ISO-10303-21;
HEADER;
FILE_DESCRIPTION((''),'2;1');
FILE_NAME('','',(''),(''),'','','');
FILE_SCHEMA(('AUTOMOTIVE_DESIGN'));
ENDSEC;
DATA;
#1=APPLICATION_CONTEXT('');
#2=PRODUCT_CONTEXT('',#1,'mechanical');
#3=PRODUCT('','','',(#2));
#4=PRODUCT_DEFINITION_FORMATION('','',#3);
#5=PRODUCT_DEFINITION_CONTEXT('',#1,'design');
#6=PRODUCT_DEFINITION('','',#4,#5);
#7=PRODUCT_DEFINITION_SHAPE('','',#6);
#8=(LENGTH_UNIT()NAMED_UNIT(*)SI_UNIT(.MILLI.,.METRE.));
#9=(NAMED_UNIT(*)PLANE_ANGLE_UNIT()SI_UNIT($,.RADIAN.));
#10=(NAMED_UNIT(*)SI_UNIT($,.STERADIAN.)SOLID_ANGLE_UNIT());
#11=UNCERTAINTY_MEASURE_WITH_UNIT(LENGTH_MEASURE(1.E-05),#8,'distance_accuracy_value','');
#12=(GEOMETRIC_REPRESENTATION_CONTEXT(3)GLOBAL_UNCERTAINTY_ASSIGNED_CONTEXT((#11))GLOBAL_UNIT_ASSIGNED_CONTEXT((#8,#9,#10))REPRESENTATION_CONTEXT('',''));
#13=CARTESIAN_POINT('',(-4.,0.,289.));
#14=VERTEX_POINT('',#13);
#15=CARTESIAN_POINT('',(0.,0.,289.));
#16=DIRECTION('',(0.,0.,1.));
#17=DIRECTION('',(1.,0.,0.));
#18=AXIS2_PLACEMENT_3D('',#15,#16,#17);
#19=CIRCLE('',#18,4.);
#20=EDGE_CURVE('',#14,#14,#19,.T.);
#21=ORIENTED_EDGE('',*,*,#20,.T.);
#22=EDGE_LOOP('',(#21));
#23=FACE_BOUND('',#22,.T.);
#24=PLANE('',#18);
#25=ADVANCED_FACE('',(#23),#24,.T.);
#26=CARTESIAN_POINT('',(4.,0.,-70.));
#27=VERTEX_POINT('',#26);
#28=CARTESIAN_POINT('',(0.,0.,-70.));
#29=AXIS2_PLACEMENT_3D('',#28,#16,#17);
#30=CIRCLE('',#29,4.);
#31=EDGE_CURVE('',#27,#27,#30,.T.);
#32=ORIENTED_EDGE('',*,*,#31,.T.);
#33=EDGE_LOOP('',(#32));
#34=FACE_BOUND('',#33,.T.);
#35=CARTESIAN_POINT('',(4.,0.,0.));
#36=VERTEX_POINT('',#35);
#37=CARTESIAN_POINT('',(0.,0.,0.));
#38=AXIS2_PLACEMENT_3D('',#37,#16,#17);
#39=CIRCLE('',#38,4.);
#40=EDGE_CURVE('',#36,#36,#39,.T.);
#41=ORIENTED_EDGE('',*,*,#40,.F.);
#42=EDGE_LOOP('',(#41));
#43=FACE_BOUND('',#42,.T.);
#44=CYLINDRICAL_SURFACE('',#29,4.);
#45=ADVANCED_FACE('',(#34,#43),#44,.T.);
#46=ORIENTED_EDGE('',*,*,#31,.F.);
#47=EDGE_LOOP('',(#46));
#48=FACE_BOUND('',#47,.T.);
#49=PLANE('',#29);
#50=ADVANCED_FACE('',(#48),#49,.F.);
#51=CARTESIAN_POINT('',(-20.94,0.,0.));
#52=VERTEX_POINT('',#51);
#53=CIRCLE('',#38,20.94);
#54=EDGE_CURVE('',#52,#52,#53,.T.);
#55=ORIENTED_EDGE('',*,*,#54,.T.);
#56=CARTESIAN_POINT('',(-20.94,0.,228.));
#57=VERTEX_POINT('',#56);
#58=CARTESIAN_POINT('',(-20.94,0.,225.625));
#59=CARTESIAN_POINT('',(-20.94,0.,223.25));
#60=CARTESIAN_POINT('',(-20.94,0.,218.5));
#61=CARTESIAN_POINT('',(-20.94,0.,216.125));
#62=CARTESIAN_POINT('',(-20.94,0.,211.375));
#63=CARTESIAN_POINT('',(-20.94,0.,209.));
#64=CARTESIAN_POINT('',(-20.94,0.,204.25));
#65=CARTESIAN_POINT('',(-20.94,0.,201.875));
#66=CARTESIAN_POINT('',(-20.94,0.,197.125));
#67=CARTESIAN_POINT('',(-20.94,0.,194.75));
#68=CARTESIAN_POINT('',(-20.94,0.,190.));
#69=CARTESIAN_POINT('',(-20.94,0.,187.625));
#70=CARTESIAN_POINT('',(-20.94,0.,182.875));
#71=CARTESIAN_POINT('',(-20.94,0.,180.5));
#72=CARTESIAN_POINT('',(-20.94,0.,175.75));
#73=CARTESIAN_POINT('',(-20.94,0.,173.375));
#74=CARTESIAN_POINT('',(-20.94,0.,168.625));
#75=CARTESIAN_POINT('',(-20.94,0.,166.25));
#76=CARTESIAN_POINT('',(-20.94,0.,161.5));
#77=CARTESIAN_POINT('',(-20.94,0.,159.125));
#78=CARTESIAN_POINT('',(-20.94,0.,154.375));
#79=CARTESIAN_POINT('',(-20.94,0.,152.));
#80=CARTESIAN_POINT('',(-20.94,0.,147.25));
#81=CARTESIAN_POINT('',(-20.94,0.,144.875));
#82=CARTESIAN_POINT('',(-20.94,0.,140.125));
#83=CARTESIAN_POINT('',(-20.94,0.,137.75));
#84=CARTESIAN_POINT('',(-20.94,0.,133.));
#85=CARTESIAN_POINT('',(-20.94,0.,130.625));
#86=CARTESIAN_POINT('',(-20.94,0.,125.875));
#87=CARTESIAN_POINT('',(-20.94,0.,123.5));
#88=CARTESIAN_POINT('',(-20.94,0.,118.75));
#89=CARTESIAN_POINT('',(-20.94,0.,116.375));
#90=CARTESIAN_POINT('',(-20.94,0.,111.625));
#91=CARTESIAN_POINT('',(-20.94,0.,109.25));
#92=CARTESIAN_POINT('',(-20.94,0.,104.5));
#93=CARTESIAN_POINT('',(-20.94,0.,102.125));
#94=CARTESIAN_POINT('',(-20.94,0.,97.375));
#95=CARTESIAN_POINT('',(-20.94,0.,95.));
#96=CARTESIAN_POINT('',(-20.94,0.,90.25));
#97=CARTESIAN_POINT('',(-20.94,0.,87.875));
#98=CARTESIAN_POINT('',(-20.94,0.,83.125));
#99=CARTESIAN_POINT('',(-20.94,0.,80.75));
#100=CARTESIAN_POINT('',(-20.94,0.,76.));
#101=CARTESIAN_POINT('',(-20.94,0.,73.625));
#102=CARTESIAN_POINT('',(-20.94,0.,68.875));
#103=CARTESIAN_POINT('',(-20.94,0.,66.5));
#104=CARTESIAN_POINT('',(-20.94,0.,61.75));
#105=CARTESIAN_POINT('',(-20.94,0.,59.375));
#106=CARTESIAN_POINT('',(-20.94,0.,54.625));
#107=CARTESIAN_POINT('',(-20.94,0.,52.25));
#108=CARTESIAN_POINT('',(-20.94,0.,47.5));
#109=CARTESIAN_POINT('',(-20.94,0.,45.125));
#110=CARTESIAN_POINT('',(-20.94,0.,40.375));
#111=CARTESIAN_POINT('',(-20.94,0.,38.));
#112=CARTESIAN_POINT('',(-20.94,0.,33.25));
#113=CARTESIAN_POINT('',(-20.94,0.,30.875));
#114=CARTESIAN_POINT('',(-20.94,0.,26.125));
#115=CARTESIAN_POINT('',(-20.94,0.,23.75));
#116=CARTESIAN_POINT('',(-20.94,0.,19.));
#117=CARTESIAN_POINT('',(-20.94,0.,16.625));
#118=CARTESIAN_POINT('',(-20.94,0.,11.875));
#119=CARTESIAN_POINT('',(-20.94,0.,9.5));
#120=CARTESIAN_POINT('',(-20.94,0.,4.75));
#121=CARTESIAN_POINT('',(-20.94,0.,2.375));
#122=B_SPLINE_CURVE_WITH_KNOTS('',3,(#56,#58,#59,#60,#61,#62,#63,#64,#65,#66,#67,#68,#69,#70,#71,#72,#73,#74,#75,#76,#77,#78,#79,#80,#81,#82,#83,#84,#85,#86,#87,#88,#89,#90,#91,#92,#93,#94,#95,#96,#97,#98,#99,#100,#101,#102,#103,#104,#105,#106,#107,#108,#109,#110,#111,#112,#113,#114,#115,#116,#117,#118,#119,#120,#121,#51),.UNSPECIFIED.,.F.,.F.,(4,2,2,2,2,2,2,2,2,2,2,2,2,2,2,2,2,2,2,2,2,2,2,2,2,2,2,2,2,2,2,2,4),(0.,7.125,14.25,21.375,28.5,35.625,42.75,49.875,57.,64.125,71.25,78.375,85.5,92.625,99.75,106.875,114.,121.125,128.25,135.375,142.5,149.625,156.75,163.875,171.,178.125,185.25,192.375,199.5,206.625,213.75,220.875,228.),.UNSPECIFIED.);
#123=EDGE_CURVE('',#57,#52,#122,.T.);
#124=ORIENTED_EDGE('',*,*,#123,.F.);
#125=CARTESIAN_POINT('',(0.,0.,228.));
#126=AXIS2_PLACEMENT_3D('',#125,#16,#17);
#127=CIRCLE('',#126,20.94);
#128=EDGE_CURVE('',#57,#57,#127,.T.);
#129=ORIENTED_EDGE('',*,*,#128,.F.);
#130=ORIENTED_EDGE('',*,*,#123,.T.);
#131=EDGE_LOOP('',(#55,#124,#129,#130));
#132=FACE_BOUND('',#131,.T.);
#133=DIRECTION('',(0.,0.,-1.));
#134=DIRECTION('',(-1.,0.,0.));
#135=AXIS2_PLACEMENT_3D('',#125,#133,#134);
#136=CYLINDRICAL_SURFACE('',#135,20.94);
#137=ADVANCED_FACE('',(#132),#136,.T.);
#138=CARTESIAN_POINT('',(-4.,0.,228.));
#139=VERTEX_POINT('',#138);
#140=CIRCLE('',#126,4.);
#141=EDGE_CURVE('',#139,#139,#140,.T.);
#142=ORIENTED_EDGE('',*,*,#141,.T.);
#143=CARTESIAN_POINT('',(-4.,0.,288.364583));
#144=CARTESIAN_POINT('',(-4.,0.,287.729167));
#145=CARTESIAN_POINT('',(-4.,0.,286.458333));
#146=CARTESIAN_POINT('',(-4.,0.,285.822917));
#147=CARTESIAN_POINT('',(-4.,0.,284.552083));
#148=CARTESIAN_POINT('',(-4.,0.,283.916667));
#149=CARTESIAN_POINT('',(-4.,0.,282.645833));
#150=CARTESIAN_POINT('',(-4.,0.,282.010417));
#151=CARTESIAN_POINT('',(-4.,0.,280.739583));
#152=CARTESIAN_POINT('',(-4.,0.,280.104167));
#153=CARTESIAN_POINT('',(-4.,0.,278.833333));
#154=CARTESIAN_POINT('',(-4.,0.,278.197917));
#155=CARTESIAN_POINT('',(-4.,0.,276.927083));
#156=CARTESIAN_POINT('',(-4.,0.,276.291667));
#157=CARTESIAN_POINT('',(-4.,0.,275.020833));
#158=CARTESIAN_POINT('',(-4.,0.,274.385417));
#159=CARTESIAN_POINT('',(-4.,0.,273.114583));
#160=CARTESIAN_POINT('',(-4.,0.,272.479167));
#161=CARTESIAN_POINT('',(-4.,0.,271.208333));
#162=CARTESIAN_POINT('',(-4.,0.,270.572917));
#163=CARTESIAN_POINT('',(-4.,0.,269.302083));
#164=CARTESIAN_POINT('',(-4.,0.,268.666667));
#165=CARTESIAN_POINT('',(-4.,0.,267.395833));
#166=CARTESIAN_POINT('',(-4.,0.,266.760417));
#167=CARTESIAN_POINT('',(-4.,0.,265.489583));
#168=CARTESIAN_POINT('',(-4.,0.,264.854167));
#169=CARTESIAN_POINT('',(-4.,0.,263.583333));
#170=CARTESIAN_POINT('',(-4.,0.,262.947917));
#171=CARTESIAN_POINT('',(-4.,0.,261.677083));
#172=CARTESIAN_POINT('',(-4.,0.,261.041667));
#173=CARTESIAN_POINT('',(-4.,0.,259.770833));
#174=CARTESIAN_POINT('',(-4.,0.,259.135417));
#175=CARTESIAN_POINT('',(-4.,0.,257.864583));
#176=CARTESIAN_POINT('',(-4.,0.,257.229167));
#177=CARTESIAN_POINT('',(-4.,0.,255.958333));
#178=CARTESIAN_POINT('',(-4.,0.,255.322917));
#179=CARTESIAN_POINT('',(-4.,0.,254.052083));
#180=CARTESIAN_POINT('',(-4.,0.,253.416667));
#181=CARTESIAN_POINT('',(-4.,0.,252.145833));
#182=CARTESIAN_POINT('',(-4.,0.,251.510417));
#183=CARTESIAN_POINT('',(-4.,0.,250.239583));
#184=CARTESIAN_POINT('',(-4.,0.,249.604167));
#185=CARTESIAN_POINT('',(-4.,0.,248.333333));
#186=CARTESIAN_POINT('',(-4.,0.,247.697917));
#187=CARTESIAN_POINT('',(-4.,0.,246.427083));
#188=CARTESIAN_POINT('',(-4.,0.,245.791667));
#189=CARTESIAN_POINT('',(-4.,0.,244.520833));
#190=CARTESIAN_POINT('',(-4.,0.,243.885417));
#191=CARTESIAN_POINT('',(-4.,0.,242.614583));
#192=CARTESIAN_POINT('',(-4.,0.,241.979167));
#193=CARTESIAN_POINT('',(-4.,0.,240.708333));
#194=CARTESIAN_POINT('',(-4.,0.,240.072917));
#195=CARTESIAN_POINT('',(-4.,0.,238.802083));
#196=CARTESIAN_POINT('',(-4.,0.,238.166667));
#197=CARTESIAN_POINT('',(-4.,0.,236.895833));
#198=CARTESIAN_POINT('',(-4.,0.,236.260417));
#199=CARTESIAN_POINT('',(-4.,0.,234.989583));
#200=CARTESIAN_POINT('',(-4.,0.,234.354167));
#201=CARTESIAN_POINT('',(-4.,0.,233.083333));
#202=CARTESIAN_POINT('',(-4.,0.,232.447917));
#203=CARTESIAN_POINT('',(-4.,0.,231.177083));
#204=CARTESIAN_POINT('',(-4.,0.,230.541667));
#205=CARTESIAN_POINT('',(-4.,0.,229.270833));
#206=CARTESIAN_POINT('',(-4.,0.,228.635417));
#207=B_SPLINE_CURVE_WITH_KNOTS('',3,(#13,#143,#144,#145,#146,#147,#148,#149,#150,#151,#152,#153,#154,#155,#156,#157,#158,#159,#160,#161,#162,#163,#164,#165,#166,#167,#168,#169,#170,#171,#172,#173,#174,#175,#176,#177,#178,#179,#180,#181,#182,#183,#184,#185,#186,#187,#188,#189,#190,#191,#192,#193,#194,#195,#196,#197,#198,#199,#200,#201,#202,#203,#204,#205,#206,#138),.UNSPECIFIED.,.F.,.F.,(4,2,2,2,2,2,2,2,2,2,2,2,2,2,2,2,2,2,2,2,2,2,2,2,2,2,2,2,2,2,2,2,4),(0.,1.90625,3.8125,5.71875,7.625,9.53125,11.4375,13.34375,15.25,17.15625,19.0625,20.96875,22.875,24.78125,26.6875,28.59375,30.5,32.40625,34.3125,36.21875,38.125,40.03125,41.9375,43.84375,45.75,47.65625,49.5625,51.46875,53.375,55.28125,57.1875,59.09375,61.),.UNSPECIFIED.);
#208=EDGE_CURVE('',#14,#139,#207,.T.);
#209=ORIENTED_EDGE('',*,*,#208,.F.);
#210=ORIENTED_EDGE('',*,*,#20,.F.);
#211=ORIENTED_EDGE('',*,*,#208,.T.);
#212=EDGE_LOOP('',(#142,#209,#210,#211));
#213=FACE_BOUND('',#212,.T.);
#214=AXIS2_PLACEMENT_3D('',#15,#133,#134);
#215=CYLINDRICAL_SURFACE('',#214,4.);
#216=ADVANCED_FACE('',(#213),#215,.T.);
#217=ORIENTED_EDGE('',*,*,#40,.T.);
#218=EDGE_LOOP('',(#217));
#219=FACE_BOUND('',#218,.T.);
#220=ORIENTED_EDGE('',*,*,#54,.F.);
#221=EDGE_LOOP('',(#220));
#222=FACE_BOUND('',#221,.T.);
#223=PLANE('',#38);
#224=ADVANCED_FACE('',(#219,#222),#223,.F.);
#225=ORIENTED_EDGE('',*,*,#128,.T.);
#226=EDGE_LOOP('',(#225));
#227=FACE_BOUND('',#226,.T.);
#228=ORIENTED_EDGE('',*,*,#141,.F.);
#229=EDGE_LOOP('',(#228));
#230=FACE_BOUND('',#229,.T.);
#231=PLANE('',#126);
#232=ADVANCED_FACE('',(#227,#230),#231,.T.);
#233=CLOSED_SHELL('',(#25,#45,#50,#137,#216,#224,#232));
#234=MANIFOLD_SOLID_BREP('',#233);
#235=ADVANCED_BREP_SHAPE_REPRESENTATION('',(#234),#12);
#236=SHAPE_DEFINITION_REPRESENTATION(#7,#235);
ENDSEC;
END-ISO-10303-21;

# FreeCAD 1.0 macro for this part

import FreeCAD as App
import Part
import Sketcher
from FreeCAD import Vector
Q = App.Units.Quantity

doc = App.newDocument("Part")
body = doc.addObject("PartDesign::Body", "Body")

sketch1 = body.newObject("Sketcher::SketchObject", "Sketch")
sketch1.AttachmentSupport = (doc.getObject("XY_Plane"), [""])
sketch1.MapMode = "FlatFace"
sketch1.addGeometry(Part.Circle(Vector(0, 0, 0), Vector(0, 0, 1), 21), False)
sketch1.addConstraint([
    Sketcher.Constraint("Coincident", 0, 3, -1, 1),
    Sketcher.Constraint("Diameter", 0, Q("41.88 mm")),
])
pad1 = body.newObject("PartDesign::Pad", "Pad")
pad1.Profile = sketch1
pad1.Length = 228

sketch2 = body.newObject("Sketcher::SketchObject", "Sketch001")
sketch2.AttachmentSupport = (doc.getObject("XY_Plane"), [""])
sketch2.MapMode = "FlatFace"
sketch2.addGeometry(Part.Circle(Vector(0, 0, 0), Vector(0, 0, 1), 4), False)
sketch2.addConstraint([
    Sketcher.Constraint("Coincident", 0, 3, -1, 1),
    Sketcher.Constraint("Diameter", 0, Q("8 mm")),
])
pad2 = body.newObject("PartDesign::Pad", "Pad001")
pad2.Profile = sketch2
pad2.Length = 70
pad2.Reversed = True

sketch3 = body.newObject("Sketcher::SketchObject", "Sketch002")
sketch3.AttachmentSupport = (doc.getObject("XY_Plane"), [""])
sketch3.MapMode = "FlatFace"
sketch3.AttachmentOffset = App.Placement(Vector(0, 0, 289), App.Rotation())
sketch3.addGeometry(Part.Circle(Vector(0, 0, 0), Vector(0, 0, 1), 4), False)
sketch3.addConstraint([
    Sketcher.Constraint("Coincident", 0, 3, -1, 1),
    Sketcher.Constraint("Diameter", 0, Q("8 mm")),
])
pad3 = body.newObject("PartDesign::Pad", "Pad002")
pad3.Profile = sketch3
pad3.Length = 61
pad3.Reversed = True

doc.recompute()
